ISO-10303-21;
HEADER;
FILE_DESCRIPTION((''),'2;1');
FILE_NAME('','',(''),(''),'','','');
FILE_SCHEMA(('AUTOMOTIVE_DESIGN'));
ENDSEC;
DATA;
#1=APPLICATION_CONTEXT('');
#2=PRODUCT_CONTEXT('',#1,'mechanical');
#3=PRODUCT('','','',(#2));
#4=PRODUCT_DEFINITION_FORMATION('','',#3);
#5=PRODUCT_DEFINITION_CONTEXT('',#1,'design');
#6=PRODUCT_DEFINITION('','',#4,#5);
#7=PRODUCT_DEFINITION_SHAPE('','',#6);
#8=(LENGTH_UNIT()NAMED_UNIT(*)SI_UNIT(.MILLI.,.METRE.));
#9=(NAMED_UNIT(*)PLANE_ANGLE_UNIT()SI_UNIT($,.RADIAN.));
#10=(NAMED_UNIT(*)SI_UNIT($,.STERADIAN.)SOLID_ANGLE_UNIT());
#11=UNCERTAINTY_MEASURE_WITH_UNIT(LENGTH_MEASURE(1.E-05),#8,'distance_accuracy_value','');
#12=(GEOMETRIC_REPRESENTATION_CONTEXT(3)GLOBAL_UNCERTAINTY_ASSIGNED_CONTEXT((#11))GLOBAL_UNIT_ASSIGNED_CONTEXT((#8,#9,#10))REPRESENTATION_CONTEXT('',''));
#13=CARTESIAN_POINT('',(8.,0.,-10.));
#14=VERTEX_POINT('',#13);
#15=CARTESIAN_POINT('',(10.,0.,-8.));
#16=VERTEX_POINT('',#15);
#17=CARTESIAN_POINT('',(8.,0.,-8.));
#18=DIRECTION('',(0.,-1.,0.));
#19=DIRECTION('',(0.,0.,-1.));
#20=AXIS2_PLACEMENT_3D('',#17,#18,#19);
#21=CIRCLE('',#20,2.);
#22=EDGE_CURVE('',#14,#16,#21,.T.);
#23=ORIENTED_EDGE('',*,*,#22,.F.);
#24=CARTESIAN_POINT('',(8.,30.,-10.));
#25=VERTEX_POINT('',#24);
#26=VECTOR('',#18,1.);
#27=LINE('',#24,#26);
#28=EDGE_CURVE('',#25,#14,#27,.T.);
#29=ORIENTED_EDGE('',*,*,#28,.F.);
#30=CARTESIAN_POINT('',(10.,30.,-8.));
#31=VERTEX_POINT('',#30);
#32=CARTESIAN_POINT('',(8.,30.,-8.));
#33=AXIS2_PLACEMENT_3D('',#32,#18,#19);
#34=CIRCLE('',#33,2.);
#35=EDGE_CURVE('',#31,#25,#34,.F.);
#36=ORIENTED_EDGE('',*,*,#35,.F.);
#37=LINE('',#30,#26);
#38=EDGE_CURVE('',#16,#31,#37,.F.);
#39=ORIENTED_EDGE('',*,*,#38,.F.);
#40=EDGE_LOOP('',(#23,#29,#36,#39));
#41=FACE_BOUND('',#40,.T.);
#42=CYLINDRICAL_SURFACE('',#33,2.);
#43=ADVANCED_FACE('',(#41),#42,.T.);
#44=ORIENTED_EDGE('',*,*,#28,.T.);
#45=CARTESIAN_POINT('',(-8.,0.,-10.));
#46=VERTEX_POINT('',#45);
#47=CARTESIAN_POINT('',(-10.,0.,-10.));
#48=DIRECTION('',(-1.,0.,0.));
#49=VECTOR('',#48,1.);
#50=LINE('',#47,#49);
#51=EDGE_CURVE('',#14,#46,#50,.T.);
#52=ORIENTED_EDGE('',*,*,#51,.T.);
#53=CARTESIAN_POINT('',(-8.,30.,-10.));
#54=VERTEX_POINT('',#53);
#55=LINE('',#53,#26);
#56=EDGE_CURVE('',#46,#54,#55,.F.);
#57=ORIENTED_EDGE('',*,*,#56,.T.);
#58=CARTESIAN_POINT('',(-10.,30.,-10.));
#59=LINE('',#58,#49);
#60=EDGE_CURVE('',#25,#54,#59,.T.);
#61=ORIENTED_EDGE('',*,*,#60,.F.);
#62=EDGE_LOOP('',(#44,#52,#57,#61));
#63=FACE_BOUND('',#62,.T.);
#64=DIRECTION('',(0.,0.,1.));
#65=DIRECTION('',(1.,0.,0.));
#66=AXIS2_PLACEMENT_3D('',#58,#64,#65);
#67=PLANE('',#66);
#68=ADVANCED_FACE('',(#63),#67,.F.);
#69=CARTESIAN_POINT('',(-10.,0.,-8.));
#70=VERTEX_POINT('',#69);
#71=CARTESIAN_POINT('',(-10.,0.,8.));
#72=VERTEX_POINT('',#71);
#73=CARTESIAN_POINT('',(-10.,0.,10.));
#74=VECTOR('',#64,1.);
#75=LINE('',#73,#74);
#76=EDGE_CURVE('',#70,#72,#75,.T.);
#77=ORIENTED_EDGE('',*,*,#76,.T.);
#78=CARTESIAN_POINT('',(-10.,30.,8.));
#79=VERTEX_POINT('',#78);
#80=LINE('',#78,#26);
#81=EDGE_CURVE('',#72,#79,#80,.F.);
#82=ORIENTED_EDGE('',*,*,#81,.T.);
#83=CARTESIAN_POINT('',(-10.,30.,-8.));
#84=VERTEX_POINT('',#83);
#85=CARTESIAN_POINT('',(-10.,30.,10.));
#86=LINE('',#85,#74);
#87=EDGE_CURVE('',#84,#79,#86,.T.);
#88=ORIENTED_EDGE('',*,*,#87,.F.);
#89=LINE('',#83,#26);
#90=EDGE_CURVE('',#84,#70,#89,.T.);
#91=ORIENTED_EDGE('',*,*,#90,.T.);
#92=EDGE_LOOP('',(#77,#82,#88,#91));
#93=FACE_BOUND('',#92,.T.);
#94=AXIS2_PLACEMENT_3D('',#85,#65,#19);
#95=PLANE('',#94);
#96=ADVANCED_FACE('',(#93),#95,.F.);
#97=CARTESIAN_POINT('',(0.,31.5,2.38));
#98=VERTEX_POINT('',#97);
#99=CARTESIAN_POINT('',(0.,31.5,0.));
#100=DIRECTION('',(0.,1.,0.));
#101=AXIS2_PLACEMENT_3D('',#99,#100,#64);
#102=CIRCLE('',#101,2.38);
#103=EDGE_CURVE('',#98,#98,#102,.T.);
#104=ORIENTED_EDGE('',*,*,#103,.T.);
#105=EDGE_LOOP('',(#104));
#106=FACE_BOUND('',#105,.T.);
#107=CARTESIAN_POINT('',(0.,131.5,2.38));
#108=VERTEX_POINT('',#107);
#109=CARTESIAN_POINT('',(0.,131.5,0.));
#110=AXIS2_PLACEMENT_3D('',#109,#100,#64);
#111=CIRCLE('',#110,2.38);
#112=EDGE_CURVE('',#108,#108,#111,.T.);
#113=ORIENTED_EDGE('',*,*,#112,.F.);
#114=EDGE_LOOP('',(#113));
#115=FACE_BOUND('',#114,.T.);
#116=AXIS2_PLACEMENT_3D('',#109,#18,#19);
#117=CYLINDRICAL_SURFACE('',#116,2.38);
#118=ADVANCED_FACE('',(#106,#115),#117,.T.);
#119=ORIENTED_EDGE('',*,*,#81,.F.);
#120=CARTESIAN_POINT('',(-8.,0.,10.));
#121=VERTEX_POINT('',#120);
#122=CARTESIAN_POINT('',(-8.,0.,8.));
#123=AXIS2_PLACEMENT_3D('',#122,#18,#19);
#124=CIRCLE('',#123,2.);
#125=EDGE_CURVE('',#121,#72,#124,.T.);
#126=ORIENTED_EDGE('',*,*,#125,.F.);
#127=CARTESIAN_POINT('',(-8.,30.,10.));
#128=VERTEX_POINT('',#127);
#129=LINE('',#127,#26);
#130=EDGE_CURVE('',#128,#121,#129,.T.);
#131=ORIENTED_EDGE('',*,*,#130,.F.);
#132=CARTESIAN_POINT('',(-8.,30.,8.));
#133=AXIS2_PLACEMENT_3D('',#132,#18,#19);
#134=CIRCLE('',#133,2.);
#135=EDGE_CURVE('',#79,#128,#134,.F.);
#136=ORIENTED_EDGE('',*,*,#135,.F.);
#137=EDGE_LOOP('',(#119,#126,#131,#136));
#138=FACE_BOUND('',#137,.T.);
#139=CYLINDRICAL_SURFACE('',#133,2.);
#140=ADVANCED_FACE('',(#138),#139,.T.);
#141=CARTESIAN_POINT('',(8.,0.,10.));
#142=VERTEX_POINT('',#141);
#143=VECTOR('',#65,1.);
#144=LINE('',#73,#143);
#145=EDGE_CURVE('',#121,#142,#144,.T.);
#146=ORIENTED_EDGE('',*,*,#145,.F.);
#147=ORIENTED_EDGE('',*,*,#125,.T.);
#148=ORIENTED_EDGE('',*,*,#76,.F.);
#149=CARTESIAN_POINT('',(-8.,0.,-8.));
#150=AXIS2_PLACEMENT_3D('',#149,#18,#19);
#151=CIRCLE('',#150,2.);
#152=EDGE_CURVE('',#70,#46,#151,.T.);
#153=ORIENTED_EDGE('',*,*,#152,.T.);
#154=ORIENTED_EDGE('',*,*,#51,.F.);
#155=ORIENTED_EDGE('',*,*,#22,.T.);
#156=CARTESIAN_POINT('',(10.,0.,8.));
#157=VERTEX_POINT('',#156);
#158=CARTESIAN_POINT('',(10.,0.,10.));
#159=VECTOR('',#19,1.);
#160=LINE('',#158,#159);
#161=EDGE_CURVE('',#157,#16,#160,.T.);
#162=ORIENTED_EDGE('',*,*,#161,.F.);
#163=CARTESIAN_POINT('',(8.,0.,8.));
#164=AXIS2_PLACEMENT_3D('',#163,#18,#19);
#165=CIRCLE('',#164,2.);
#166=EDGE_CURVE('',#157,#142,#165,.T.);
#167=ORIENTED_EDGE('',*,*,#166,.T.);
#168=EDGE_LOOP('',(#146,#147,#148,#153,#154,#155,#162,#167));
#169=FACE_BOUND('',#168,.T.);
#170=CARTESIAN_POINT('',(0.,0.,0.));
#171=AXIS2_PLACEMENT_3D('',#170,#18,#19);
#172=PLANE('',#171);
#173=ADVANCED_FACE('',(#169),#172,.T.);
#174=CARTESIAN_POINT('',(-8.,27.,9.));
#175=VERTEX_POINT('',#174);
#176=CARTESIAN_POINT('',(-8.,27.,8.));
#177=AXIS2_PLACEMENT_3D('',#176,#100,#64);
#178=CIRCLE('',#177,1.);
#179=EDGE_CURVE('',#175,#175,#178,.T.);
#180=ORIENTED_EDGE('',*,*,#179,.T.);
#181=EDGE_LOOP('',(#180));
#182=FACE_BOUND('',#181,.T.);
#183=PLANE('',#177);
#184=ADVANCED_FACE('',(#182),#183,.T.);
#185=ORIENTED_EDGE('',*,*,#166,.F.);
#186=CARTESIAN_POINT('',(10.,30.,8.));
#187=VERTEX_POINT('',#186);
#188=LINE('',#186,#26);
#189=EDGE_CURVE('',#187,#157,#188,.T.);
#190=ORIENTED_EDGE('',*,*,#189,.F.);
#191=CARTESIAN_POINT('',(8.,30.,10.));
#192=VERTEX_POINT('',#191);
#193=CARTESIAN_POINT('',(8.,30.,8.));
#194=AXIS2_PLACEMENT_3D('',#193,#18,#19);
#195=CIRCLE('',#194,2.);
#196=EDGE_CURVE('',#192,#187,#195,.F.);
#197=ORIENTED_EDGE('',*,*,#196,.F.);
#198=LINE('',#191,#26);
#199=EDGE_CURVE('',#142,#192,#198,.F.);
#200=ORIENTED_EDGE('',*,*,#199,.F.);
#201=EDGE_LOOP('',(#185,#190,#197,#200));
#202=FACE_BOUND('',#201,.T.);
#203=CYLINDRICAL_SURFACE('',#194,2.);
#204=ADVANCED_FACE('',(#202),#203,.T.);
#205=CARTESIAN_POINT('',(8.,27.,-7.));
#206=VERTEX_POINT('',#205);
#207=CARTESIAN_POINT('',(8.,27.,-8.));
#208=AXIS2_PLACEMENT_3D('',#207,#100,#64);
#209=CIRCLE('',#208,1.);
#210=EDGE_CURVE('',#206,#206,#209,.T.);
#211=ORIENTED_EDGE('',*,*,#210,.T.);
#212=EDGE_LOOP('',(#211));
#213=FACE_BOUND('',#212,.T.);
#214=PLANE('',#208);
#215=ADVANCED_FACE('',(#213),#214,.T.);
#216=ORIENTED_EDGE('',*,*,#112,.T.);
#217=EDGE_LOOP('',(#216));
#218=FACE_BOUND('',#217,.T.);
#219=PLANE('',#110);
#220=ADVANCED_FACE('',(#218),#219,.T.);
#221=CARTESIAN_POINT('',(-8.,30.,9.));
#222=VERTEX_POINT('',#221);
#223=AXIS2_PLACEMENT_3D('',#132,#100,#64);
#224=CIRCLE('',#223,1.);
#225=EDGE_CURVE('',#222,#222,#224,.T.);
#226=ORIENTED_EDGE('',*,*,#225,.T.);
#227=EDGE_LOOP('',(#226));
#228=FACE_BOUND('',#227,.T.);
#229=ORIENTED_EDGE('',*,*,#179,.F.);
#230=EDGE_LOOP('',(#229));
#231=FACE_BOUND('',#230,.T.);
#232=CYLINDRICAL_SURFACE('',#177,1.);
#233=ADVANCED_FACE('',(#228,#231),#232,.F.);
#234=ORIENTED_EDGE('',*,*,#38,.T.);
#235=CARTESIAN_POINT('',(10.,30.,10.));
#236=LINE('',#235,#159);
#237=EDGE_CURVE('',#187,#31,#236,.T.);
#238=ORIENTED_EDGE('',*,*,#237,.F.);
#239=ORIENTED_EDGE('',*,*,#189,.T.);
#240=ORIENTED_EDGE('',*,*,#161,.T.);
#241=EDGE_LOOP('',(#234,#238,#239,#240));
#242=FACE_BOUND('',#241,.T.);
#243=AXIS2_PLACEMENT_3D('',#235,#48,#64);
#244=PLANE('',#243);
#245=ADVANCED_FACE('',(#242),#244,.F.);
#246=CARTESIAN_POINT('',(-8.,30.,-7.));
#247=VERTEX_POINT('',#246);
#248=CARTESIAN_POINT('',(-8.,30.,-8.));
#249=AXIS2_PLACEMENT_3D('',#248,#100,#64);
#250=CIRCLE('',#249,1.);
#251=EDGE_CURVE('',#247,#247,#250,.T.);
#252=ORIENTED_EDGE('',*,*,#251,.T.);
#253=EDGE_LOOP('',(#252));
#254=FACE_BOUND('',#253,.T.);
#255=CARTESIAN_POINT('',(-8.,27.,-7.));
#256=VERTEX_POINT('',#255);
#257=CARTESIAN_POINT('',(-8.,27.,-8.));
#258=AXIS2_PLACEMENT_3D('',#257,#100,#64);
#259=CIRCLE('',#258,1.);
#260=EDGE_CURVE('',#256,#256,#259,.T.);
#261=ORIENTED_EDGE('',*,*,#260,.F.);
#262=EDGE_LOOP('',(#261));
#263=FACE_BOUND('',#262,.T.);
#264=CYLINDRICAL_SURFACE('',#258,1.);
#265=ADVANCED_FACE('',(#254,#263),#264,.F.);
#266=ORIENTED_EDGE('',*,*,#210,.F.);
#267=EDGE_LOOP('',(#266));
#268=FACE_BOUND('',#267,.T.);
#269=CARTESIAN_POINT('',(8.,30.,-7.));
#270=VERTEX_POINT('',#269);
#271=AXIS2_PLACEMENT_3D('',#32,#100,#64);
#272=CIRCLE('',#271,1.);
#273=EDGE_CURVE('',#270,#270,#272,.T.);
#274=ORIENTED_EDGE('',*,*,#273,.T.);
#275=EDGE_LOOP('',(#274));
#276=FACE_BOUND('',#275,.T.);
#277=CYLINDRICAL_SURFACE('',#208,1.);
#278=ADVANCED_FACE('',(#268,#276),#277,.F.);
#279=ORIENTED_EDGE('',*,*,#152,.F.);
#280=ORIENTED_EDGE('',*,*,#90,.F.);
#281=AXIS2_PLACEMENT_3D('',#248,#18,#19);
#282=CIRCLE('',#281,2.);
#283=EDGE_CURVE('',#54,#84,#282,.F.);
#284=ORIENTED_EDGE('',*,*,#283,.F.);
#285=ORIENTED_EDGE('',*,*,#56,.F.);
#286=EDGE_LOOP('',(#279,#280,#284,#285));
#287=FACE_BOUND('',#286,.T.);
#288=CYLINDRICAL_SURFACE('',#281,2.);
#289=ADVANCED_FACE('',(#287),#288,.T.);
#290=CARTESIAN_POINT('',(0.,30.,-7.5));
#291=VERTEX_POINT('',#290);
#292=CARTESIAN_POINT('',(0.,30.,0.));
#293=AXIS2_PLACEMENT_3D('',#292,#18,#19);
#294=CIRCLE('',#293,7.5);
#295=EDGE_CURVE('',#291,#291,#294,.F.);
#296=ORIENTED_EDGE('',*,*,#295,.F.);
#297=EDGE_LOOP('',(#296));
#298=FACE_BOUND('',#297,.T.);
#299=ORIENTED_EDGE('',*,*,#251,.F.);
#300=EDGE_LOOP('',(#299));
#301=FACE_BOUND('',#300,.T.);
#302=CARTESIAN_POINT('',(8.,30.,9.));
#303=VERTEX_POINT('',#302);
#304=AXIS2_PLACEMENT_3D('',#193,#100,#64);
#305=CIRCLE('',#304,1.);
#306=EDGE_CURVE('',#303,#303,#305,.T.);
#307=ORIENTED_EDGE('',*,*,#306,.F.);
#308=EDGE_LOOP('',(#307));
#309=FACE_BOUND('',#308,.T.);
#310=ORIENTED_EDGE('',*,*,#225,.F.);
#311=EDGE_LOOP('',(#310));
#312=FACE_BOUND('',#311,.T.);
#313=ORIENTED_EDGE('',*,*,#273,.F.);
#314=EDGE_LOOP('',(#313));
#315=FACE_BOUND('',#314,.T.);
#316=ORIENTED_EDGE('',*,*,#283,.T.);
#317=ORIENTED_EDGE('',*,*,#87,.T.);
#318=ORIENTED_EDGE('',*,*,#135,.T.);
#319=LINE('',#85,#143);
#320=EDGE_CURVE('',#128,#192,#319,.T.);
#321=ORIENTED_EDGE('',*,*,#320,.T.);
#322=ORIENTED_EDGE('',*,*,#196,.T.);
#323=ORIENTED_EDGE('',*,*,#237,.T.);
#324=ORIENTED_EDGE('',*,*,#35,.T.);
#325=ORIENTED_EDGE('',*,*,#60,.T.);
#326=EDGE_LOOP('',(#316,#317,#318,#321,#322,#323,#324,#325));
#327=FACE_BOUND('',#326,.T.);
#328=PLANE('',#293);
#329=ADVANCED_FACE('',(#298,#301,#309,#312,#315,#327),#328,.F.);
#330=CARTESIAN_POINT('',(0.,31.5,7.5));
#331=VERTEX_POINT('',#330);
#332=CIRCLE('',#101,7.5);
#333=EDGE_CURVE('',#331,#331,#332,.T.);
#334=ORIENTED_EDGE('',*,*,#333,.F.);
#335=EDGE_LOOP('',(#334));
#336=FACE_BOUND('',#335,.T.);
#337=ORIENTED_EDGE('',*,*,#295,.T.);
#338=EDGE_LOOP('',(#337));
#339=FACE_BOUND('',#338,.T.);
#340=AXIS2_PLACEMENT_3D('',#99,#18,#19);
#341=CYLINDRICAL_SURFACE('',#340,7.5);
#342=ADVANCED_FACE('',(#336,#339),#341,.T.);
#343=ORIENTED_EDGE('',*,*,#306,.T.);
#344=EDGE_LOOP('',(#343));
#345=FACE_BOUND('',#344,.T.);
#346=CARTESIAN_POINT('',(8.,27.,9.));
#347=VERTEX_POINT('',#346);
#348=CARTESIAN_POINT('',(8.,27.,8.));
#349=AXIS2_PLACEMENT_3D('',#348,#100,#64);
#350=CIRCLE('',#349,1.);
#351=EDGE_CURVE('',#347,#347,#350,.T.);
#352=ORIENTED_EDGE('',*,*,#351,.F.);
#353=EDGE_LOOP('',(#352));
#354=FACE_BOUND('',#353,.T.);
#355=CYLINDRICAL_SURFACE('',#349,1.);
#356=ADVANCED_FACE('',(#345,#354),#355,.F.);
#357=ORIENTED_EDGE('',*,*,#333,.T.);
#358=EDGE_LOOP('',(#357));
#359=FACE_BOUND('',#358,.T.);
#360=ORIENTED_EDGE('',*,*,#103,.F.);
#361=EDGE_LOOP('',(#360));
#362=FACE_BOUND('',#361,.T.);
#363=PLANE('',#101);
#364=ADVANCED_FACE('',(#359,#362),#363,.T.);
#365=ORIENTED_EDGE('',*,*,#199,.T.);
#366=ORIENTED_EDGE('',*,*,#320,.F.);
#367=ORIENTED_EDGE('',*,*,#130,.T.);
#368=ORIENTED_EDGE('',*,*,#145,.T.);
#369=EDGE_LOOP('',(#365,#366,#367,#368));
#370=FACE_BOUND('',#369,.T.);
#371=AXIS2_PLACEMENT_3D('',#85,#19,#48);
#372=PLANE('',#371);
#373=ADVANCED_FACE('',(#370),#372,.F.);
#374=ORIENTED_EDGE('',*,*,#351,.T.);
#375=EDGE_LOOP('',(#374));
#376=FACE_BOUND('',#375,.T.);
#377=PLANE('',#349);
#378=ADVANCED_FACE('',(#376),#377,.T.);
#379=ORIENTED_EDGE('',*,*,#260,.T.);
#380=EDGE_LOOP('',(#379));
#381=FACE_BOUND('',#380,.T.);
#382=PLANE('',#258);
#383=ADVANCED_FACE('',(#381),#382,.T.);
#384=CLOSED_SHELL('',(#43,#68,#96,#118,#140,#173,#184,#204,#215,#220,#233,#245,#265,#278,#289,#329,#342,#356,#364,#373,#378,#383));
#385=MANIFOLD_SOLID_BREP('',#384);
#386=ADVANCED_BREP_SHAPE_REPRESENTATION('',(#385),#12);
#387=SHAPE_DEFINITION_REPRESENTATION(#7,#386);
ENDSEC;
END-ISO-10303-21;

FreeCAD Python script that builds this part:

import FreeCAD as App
import Part
import Sketcher
from FreeCAD import Vector
Q = App.Units.Quantity


def edges_at(feature, points):
    """Names of the edges that pass closest to the given points."""
    edges = feature.Shape.Edges
    near = lambda p: min(range(len(edges)), key=lambda i: edges[i].distToShape(Part.Vertex(*p))[0])
    return sorted({f"Edge{near(p) + 1}" for p in points})

doc = App.newDocument("Part")
params = doc.addObject("Spreadsheet::Sheet", "Params")
for row, (alias, value) in enumerate([
    ("sketch1_width", "20 mm"),
    ("pad1_length", "30 mm"),
    ("fillet_radius", "2 mm"),
    ("sketch2_diameter", "2 mm"),
    ("pocket1_length", "3 mm"),
    ("sketch3_diameter", "15 mm"),
    ("pad2_length", "1.5 mm"),
    ("sketch4_diameter", "4.76 mm"),
    ("pad3_length", "100 mm"),
], start=1):
    params.set(f"A{row}", alias)
    params.set(f"B{row}", "=" + value)
    params.setAlias(f"B{row}", alias)

body = doc.addObject("PartDesign::Body", "Body")

sketch1 = body.newObject("Sketcher::SketchObject", "Sketch")
sketch1.AttachmentSupport = (doc.getObject("XZ_Plane"), [""])
sketch1.MapMode = "FlatFace"
sketch1.addGeometry(Part.LineSegment(Vector(-10, -10, 0), Vector(-10, 10, 0)), False)
sketch1.addGeometry(Part.LineSegment(Vector(-10, 10, 0), Vector(10, 10, 0)), False)
sketch1.addGeometry(Part.LineSegment(Vector(10, 10, 0), Vector(10, -10, 0)), False)
sketch1.addGeometry(Part.LineSegment(Vector(10, -10, 0), Vector(-10, -10, 0)), False)
sketch1.addConstraint(Sketcher.Constraint("Coincident", 0, 2, 1, 1))
sketch1.addConstraint(Sketcher.Constraint("Coincident", 1, 2, 2, 1))
sketch1.addConstraint(Sketcher.Constraint("Coincident", 2, 2, 3, 1))
sketch1.addConstraint(Sketcher.Constraint("Coincident", 3, 2, 0, 1))
sketch1.addConstraint(Sketcher.Constraint("Vertical", 0))
sketch1.addConstraint(Sketcher.Constraint("Horizontal", 1))
sketch1.addConstraint(Sketcher.Constraint("Vertical", 2))
sketch1.addConstraint(Sketcher.Constraint("Horizontal", 3))
sketch1.addConstraint(Sketcher.Constraint("Symmetric", 0, 2, 2, 2, -1, 1))
sketch1.addConstraint(Sketcher.Constraint("Equal", 3, 0))
sketch1.addConstraint(Sketcher.Constraint("DistanceX", 1, 1, 1, 2, Q("20 mm")))
sketch1.setExpression("Constraints[10]", "Params.sketch1_width")
pad1 = body.newObject("PartDesign::Pad", "Pad")
pad1.Profile = sketch1
pad1.setExpression("Length", "Params.pad1_length")
pad1.Reversed = True
doc.recompute()

fillet = body.newObject("PartDesign::Fillet", "Fillet")
fillet.Base = (pad1, edges_at(pad1, [
    (10, 15, 10),
    (-10, 15, 10),
    (-10, 15, -10),
    (10, 15, -10),
]))
fillet.setExpression("Radius", "Params.fillet_radius")

sketch2 = body.newObject("Sketcher::SketchObject", "Sketch001")
sketch2.AttachmentSupport = (doc.getObject("XZ_Plane"), [""])
sketch2.MapMode = "FlatFace"
sketch2.AttachmentOffset = App.Placement(Vector(0, 0, -30), App.Rotation())
sketch2.addGeometry(Part.Circle(Vector(-8, -8, 0), Vector(0, 0, 1), 1), False)
sketch2.addGeometry(Part.Circle(Vector(8, -8, 0), Vector(0, 0, 1), 1), False)
sketch2.addGeometry(Part.Circle(Vector(8, 8, 0), Vector(0, 0, 1), 1), False)
sketch2.addGeometry(Part.Circle(Vector(-8, 8, 0), Vector(0, 0, 1), 1), False)
sketch2.addConstraint(Sketcher.Constraint("Equal", 0, 1))
sketch2.addConstraint(Sketcher.Constraint("Equal", 1, 2))
sketch2.addConstraint(Sketcher.Constraint("Equal", 2, 3))
sketch2.addConstraint(Sketcher.Constraint("Symmetric", 0, 3, 2, 3, -1, 1))
sketch2.addConstraint(Sketcher.Constraint("Symmetric", 1, 3, 3, 3, -1, 1))
sketch2.addConstraint(Sketcher.Constraint("Symmetric", 0, 3, 1, 3, -2))
sketch2.addConstraint(Sketcher.Constraint("Diameter", 0, Q("2 mm")))
sketch2.addConstraint(Sketcher.Constraint("DistanceX", 0, 3, -1, 1, Q("8 mm")))
sketch2.addConstraint(Sketcher.Constraint("DistanceY", 0, 3, -1, 1, Q("8 mm")))
sketch2.setExpression("Constraints[6]", "Params.sketch2_diameter")
pocket1 = body.newObject("PartDesign::Pocket", "Pocket")
pocket1.Profile = sketch2
pocket1.setExpression("Length", "Params.pocket1_length")
pocket1.Reversed = True

sketch3 = body.newObject("Sketcher::SketchObject", "Sketch002")
sketch3.AttachmentSupport = (doc.getObject("XZ_Plane"), [""])
sketch3.MapMode = "FlatFace"
sketch3.AttachmentOffset = App.Placement(Vector(0, 0, -30), App.Rotation())
sketch3.addGeometry(Part.Circle(Vector(0, 0, 0), Vector(0, 0, 1), 7.5), False)
sketch3.addConstraint(Sketcher.Constraint("Coincident", 0, 3, -1, 1))
sketch3.addConstraint(Sketcher.Constraint("Diameter", 0, Q("15 mm")))
sketch3.setExpression("Constraints[1]", "Params.sketch3_diameter")
pad2 = body.newObject("PartDesign::Pad", "Pad001")
pad2.Profile = sketch3
pad2.setExpression("Length", "Params.pad2_length")
pad2.Reversed = True

sketch4 = body.newObject("Sketcher::SketchObject", "Sketch003")
sketch4.AttachmentSupport = (doc.getObject("XZ_Plane"), [""])
sketch4.MapMode = "FlatFace"
sketch4.AttachmentOffset = App.Placement(Vector(0, 0, -31.5), App.Rotation())
sketch4.addGeometry(Part.Circle(Vector(0, 0, 0), Vector(0, 0, 1), 2.38), False)
sketch4.addConstraint(Sketcher.Constraint("Coincident", 0, 3, -1, 1))
sketch4.addConstraint(Sketcher.Constraint("Diameter", 0, Q("4.76 mm")))
sketch4.setExpression("Constraints[1]", "Params.sketch4_diameter")
pad3 = body.newObject("PartDesign::Pad", "Pad002")
pad3.Profile = sketch4
pad3.setExpression("Length", "Params.pad3_length")
pad3.Reversed = True

doc.recompute()
